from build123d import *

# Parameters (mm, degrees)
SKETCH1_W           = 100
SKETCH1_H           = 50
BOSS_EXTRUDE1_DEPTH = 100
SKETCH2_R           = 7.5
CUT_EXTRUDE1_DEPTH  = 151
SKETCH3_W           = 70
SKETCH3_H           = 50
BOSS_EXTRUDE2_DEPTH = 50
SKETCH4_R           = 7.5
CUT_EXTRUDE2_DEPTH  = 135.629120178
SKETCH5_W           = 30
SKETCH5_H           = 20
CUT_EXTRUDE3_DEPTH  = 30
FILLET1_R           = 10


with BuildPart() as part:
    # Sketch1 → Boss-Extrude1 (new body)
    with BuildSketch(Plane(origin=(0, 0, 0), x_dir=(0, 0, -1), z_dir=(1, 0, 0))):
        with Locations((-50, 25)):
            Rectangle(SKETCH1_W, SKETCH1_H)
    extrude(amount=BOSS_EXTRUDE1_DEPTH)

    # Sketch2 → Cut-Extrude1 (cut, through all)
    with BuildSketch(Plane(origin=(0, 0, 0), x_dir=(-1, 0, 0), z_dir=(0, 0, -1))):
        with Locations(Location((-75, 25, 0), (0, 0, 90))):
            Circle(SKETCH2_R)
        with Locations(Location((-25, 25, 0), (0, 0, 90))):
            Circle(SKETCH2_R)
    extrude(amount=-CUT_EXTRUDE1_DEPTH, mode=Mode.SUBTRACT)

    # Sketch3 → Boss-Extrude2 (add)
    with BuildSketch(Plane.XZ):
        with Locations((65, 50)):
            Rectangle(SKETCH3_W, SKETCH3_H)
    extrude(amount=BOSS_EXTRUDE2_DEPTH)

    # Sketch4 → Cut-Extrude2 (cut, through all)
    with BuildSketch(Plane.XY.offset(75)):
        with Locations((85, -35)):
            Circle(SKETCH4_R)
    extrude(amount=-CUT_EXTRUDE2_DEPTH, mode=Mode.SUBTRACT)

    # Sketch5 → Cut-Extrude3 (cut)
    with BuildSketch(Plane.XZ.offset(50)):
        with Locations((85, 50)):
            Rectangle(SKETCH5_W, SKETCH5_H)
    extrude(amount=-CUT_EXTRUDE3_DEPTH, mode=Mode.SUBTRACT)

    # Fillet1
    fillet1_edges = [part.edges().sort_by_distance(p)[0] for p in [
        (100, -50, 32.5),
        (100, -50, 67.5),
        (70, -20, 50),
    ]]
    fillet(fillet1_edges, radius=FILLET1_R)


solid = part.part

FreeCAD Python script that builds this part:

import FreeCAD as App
import Part
import Sketcher

V = App.Vector


def edges_at(feature, points):
    """Names of the edges that pass closest to the given points."""
    edges = feature.Shape.Edges
    near = lambda p: min(range(len(edges)), key=lambda i: edges[i].distToShape(Part.Vertex(*p))[0])
    return sorted({f"Edge{near(p) + 1}" for p in points})


def add_polygon(sketch, points):
    """Adds a closed chain of lines whose ends are joined by coincident constraints."""
    first, n = sketch.GeometryCount, len(points)
    for a, b in zip(points, points[1:] + points[:1]):
        sketch.addGeometry(Part.LineSegment(App.Vector(*a, 0), App.Vector(*b, 0)), False)
    for i in range(n):
        sketch.addConstraint(Sketcher.Constraint("Coincident", first + i, 2, first + (i + 1) % n, 1))

doc = App.newDocument("Part")
body = doc.addObject("PartDesign::Body", "Body")

# Sketch on YZ plane
sketch1 = doc.addObject("Sketcher::SketchObject", "Sketch")
body.addObject(sketch1)
sketch1.AttachmentSupport = (doc.YZ_Plane, [""])
sketch1.MapMode = "FlatFace"
add_polygon(sketch1, [(50, 100), (0, 100), (0, 0), (50, 0)])  # lines 0-3
sketch1.addConstraint([
    Sketcher.Constraint("Horizontal", 0),
    Sketcher.Constraint("Vertical", 1),
    Sketcher.Constraint("Horizontal", 2),
    Sketcher.Constraint("Vertical", 3),
    Sketcher.Constraint("Coincident", 1, 2, -1, 1),
    Sketcher.Constraint("DistanceX", 0, 2, 0, 1, 50.0),
    Sketcher.Constraint("DistanceY", 1, 2, 1, 1, 100.0),
])
pad1 = doc.addObject("PartDesign::Pad", "Pad")
body.addObject(pad1)
pad1.Profile = sketch1
pad1.Length = 100

# Sketch on XY plane
sketch2 = doc.addObject("Sketcher::SketchObject", "Sketch001")
body.addObject(sketch2)
sketch2.AttachmentSupport = (doc.XY_Plane, [""])
sketch2.MapMode = "FlatFace"
sketch2.addGeometry([
    Part.Circle(V(75, 25, 0), V(0, 0, 1), 8),
    Part.Circle(V(25, 25, 0), V(0, 0, 1), 8),
], False)
sketch2.addConstraint([
    Sketcher.Constraint("Equal", 0, 1),
    Sketcher.Constraint("Horizontal", 0, 3, 1, 3),
    Sketcher.Constraint("Diameter", 0, 15.0),
    Sketcher.Constraint("DistanceX", -1, 1, 0, 3, 75.0),
    Sketcher.Constraint("DistanceY", -1, 1, 0, 3, 25.0),
    Sketcher.Constraint("DistanceX", -1, 1, 1, 3, 25.0),
])
pocket1 = doc.addObject("PartDesign::Pocket", "Pocket")
body.addObject(pocket1)
pocket1.Profile = sketch2
pocket1.Type = "ThroughAll"
pocket1.Reversed = True

# Sketch on XZ plane
sketch3 = doc.addObject("Sketcher::SketchObject", "Sketch002")
body.addObject(sketch3)
sketch3.AttachmentSupport = (doc.XZ_Plane, [""])
sketch3.MapMode = "FlatFace"
add_polygon(sketch3, [(30, 75), (30, 25), (100, 25), (100, 75)])  # lines 0-3
sketch3.addConstraint([
    Sketcher.Constraint("Vertical", 0),
    Sketcher.Constraint("Horizontal", 1),
    Sketcher.Constraint("Vertical", 2),
    Sketcher.Constraint("Horizontal", 3),
    Sketcher.Constraint("DistanceX", 1, 1, 1, 2, 70.0),
    Sketcher.Constraint("DistanceY", 0, 2, 0, 1, 50.0),
    Sketcher.Constraint("DistanceX", -1, 1, 0, 2, 30.0),
    Sketcher.Constraint("DistanceY", -1, 1, 0, 2, 25.0),
])
pad2 = doc.addObject("PartDesign::Pad", "Pad001")
body.addObject(pad2)
pad2.Profile = sketch3
pad2.Length = 50

# Sketch on XY plane
sketch4 = doc.addObject("Sketcher::SketchObject", "Sketch003")
body.addObject(sketch4)
sketch4.AttachmentSupport = (doc.XY_Plane, [""])
sketch4.MapMode = "FlatFace"
sketch4.AttachmentOffset = App.Placement(V(0, 0, 75), App.Rotation())
sketch4.addGeometry(Part.Circle(V(85, -35, 0), V(0, 0, 1), 8), False)
sketch4.addConstraint([
    Sketcher.Constraint("Diameter", 0, 15.0),
    Sketcher.Constraint("DistanceX", -1, 1, 0, 3, 85.0),
    Sketcher.Constraint("DistanceY", 0, 3, -1, 1, 35.0),
])
pocket2 = doc.addObject("PartDesign::Pocket", "Pocket001")
body.addObject(pocket2)
pocket2.Profile = sketch4
pocket2.Type = "ThroughAll"

# Sketch on XZ plane
sketch5 = doc.addObject("Sketcher::SketchObject", "Sketch004")
body.addObject(sketch5)
sketch5.AttachmentSupport = (doc.XZ_Plane, [""])
sketch5.MapMode = "FlatFace"
sketch5.AttachmentOffset = App.Placement(V(0, 0, 50), App.Rotation())
add_polygon(sketch5, [(70, 60), (70, 40), (100, 40), (100, 60)])  # lines 0-3
sketch5.addConstraint([
    Sketcher.Constraint("Vertical", 0),
    Sketcher.Constraint("Horizontal", 1),
    Sketcher.Constraint("Vertical", 2),
    Sketcher.Constraint("Horizontal", 3),
    Sketcher.Constraint("DistanceX", 1, 1, 1, 2, 30.0),
    Sketcher.Constraint("DistanceY", 0, 2, 0, 1, 20.0),
    Sketcher.Constraint("DistanceX", -1, 1, 0, 2, 70.0),
    Sketcher.Constraint("DistanceY", -1, 1, 0, 2, 40.0),
])
pocket3 = doc.addObject("PartDesign::Pocket", "Pocket002")
body.addObject(pocket3)
pocket3.Profile = sketch5
pocket3.Length = 30
doc.recompute()

fillet = doc.addObject("PartDesign::Fillet", "Fillet")
body.addObject(fillet)
fillet.Base = (pocket3, edges_at(pocket3, [(100, -50, 32.5), (100, -50, 67.5), (70, -20, 50)]))
fillet.Radius = 10

doc.recompute()
